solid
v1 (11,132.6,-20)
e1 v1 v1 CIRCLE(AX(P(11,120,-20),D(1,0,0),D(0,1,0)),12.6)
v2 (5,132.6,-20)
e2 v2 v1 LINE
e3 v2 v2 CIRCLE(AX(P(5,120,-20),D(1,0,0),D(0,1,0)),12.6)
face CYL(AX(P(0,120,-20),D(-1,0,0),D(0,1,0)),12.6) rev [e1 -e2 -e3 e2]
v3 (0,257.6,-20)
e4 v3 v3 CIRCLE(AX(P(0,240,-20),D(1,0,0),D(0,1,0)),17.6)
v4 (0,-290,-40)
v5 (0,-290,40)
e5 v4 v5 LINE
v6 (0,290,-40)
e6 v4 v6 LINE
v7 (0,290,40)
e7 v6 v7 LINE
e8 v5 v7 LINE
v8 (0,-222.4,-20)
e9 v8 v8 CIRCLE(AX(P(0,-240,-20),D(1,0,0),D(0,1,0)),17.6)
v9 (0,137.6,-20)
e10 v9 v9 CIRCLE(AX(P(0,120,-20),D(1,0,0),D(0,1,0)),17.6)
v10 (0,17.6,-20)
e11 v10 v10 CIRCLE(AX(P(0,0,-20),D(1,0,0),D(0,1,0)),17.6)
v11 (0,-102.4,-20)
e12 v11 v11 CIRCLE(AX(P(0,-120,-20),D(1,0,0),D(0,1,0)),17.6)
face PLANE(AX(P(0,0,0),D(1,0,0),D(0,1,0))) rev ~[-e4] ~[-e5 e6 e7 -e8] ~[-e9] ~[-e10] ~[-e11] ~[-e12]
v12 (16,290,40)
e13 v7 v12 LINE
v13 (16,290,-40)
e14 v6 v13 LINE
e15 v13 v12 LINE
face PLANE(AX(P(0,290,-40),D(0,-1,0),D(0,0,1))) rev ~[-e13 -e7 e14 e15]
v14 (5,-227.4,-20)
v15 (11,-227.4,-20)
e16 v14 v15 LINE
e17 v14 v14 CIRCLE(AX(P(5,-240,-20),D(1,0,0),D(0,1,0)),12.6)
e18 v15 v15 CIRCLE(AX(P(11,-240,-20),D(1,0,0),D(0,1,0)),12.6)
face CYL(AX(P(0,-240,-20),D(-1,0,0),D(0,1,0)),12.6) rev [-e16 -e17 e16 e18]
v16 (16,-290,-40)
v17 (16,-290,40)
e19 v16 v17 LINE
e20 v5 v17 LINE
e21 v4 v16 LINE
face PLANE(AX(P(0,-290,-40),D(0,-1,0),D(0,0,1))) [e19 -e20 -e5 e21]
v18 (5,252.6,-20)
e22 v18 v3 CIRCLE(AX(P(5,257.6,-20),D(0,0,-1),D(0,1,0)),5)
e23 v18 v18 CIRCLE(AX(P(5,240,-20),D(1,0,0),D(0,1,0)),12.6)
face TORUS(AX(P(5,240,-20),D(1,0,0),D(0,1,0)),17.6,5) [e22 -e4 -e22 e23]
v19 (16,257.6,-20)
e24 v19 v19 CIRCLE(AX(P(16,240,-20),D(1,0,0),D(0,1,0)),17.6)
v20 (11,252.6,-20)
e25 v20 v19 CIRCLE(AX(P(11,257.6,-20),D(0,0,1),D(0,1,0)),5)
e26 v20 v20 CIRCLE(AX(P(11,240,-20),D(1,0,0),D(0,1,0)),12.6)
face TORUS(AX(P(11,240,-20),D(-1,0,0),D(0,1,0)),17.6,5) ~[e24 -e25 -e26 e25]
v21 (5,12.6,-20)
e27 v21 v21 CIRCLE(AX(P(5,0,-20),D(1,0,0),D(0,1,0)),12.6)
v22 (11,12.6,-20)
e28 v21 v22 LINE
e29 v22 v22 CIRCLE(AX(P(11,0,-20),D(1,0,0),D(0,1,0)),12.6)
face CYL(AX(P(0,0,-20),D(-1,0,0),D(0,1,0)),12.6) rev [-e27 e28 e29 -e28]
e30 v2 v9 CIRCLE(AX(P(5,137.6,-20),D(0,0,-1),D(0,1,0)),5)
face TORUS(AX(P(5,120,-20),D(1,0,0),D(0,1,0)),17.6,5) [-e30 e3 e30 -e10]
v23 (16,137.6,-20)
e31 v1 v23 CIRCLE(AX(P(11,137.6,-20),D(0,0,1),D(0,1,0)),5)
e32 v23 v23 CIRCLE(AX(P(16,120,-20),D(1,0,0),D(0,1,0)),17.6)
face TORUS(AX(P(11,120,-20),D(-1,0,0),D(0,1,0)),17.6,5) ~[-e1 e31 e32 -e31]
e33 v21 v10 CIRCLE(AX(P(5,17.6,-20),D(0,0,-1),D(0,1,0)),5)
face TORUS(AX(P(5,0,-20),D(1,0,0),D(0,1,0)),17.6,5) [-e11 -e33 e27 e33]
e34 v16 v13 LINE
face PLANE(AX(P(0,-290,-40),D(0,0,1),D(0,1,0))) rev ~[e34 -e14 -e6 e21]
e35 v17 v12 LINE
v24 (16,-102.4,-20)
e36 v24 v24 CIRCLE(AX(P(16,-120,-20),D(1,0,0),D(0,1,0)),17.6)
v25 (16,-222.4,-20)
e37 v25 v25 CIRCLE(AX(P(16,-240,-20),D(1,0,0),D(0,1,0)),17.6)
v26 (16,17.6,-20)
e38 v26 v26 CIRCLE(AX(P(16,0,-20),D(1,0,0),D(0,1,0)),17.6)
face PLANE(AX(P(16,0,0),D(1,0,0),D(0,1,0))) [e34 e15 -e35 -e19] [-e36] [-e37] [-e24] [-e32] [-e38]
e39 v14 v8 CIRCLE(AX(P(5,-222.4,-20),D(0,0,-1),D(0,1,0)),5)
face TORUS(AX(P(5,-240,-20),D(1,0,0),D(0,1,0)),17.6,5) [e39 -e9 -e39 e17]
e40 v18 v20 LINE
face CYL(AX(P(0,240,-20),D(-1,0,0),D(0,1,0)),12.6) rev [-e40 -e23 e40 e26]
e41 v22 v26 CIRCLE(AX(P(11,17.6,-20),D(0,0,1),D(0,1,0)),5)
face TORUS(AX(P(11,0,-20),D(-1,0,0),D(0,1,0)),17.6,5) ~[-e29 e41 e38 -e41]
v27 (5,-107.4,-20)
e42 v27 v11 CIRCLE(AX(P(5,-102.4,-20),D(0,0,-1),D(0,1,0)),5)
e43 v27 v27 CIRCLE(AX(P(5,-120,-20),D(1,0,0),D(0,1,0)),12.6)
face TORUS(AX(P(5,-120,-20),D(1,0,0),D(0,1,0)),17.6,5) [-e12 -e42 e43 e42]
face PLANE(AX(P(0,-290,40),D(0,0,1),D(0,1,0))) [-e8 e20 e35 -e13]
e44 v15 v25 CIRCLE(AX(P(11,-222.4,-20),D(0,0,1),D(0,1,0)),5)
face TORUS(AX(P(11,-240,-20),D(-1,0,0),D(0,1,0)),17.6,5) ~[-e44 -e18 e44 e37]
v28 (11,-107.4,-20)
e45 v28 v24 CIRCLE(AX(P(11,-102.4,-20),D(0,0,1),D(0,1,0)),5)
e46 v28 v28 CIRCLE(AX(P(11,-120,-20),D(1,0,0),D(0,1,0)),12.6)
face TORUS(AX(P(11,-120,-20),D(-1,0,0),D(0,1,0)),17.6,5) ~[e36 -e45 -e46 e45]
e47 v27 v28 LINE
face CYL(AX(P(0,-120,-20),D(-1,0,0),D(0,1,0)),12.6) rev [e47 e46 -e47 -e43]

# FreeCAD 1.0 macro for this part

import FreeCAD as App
import Part
import Sketcher

V = App.Vector


def edges_at(feature, points):
    """Names of the edges that pass closest to the given points."""
    edges = feature.Shape.Edges
    near = lambda p: min(range(len(edges)), key=lambda i: edges[i].distToShape(Part.Vertex(*p))[0])
    return sorted({f"Edge{near(p) + 1}" for p in points})


def add_polygon(sketch, points):
    """Adds a closed chain of lines whose ends are joined by coincident constraints."""
    first, n = sketch.GeometryCount, len(points)
    for a, b in zip(points, points[1:] + points[:1]):
        sketch.addGeometry(Part.LineSegment(App.Vector(*a, 0), App.Vector(*b, 0)), False)
    for i in range(n):
        sketch.addConstraint(Sketcher.Constraint("Coincident", first + i, 2, first + (i + 1) % n, 1))

doc = App.newDocument("Part")
body = doc.addObject("PartDesign::Body", "Body")

# Sketch on YZ plane
sketch1 = body.newObject("Sketcher::SketchObject", "Sketch")
sketch1.AttachmentSupport = (doc.getObject("YZ_Plane"), [""])
sketch1.MapMode = "FlatFace"
add_polygon(sketch1, [(-290, 40), (-290, -40), (290, -40), (290, 40)])  # lines 0-3
sketch1.addGeometry(Part.Circle(V(-240, -20, 0), V(0, 0, 1), 13), False)  # 4
sketch1.addGeometry(Part.Circle(V(-120, -20, 0), V(0, 0, 1), 13), False)  # 5
sketch1.addGeometry(Part.Circle(V(0, -20, 0), V(0, 0, 1), 13), False)  # 6
sketch1.addGeometry(Part.Circle(V(120, -20, 0), V(0, 0, 1), 13), False)  # 7
sketch1.addGeometry(Part.Circle(V(240, -20, 0), V(0, 0, 1), 13), False)  # 8
sketch1.addConstraint([
    Sketcher.Constraint("Vertical", 0),
    Sketcher.Constraint("Horizontal", 1),
    Sketcher.Constraint("Vertical", 2),
    Sketcher.Constraint("Horizontal", 3),
    Sketcher.Constraint("Equal", 4, 5),
    Sketcher.Constraint("Equal", 5, 6),
    Sketcher.Constraint("Equal", 6, 7),
    Sketcher.Constraint("Equal", 7, 8),
    Sketcher.Constraint("Symmetric", 0, 2, 2, 2, -1, 1),
    Sketcher.Constraint("Symmetric", 5, 3, 7, 3, -2),
    Sketcher.Constraint("Symmetric", 4, 3, 8, 3, -2),
    Sketcher.Constraint("PointOnObject", 6, 3, -2),
    Sketcher.Constraint("Horizontal", 4, 3, 5, 3),
    Sketcher.Constraint("Horizontal", 5, 3, 6, 3),
    Sketcher.Constraint("Diameter", 4, 25.2),
    Sketcher.Constraint("DistanceX", 1, 1, 1, 2, 580.0),
    Sketcher.Constraint("DistanceY", 0, 2, 0, 1, 80.0),
    Sketcher.Constraint("DistanceX", 4, 3, -1, 1, 240.0),
    Sketcher.Constraint("DistanceY", 4, 3, -1, 1, 20.0),
    Sketcher.Constraint("DistanceX", 5, 3, -1, 1, 120.0),
])
pad1 = body.newObject("PartDesign::Pad", "Pad")
pad1.Profile = sketch1
pad1.Length = 16
doc.recompute()

fillet = body.newObject("PartDesign::Fillet", "Fillet")
fillet.Base = (pad1, edges_at(pad1, [
    (0, -132.6, -20),
    (8, -107.4, -20),
    (16, -132.6, -20),
    (16, -252.6, -20),
    (8, -227.4, -20),
    (0, -252.6, -20),
    (0, -12.6, -20),
    (16, -12.6, -20),
    (0, 107.4, -20),
    (16, 107.4, -20),
    (16, 227.4, -20),
    (0, 227.4, -20),
]))
fillet.Radius = 5

doc.recompute()
